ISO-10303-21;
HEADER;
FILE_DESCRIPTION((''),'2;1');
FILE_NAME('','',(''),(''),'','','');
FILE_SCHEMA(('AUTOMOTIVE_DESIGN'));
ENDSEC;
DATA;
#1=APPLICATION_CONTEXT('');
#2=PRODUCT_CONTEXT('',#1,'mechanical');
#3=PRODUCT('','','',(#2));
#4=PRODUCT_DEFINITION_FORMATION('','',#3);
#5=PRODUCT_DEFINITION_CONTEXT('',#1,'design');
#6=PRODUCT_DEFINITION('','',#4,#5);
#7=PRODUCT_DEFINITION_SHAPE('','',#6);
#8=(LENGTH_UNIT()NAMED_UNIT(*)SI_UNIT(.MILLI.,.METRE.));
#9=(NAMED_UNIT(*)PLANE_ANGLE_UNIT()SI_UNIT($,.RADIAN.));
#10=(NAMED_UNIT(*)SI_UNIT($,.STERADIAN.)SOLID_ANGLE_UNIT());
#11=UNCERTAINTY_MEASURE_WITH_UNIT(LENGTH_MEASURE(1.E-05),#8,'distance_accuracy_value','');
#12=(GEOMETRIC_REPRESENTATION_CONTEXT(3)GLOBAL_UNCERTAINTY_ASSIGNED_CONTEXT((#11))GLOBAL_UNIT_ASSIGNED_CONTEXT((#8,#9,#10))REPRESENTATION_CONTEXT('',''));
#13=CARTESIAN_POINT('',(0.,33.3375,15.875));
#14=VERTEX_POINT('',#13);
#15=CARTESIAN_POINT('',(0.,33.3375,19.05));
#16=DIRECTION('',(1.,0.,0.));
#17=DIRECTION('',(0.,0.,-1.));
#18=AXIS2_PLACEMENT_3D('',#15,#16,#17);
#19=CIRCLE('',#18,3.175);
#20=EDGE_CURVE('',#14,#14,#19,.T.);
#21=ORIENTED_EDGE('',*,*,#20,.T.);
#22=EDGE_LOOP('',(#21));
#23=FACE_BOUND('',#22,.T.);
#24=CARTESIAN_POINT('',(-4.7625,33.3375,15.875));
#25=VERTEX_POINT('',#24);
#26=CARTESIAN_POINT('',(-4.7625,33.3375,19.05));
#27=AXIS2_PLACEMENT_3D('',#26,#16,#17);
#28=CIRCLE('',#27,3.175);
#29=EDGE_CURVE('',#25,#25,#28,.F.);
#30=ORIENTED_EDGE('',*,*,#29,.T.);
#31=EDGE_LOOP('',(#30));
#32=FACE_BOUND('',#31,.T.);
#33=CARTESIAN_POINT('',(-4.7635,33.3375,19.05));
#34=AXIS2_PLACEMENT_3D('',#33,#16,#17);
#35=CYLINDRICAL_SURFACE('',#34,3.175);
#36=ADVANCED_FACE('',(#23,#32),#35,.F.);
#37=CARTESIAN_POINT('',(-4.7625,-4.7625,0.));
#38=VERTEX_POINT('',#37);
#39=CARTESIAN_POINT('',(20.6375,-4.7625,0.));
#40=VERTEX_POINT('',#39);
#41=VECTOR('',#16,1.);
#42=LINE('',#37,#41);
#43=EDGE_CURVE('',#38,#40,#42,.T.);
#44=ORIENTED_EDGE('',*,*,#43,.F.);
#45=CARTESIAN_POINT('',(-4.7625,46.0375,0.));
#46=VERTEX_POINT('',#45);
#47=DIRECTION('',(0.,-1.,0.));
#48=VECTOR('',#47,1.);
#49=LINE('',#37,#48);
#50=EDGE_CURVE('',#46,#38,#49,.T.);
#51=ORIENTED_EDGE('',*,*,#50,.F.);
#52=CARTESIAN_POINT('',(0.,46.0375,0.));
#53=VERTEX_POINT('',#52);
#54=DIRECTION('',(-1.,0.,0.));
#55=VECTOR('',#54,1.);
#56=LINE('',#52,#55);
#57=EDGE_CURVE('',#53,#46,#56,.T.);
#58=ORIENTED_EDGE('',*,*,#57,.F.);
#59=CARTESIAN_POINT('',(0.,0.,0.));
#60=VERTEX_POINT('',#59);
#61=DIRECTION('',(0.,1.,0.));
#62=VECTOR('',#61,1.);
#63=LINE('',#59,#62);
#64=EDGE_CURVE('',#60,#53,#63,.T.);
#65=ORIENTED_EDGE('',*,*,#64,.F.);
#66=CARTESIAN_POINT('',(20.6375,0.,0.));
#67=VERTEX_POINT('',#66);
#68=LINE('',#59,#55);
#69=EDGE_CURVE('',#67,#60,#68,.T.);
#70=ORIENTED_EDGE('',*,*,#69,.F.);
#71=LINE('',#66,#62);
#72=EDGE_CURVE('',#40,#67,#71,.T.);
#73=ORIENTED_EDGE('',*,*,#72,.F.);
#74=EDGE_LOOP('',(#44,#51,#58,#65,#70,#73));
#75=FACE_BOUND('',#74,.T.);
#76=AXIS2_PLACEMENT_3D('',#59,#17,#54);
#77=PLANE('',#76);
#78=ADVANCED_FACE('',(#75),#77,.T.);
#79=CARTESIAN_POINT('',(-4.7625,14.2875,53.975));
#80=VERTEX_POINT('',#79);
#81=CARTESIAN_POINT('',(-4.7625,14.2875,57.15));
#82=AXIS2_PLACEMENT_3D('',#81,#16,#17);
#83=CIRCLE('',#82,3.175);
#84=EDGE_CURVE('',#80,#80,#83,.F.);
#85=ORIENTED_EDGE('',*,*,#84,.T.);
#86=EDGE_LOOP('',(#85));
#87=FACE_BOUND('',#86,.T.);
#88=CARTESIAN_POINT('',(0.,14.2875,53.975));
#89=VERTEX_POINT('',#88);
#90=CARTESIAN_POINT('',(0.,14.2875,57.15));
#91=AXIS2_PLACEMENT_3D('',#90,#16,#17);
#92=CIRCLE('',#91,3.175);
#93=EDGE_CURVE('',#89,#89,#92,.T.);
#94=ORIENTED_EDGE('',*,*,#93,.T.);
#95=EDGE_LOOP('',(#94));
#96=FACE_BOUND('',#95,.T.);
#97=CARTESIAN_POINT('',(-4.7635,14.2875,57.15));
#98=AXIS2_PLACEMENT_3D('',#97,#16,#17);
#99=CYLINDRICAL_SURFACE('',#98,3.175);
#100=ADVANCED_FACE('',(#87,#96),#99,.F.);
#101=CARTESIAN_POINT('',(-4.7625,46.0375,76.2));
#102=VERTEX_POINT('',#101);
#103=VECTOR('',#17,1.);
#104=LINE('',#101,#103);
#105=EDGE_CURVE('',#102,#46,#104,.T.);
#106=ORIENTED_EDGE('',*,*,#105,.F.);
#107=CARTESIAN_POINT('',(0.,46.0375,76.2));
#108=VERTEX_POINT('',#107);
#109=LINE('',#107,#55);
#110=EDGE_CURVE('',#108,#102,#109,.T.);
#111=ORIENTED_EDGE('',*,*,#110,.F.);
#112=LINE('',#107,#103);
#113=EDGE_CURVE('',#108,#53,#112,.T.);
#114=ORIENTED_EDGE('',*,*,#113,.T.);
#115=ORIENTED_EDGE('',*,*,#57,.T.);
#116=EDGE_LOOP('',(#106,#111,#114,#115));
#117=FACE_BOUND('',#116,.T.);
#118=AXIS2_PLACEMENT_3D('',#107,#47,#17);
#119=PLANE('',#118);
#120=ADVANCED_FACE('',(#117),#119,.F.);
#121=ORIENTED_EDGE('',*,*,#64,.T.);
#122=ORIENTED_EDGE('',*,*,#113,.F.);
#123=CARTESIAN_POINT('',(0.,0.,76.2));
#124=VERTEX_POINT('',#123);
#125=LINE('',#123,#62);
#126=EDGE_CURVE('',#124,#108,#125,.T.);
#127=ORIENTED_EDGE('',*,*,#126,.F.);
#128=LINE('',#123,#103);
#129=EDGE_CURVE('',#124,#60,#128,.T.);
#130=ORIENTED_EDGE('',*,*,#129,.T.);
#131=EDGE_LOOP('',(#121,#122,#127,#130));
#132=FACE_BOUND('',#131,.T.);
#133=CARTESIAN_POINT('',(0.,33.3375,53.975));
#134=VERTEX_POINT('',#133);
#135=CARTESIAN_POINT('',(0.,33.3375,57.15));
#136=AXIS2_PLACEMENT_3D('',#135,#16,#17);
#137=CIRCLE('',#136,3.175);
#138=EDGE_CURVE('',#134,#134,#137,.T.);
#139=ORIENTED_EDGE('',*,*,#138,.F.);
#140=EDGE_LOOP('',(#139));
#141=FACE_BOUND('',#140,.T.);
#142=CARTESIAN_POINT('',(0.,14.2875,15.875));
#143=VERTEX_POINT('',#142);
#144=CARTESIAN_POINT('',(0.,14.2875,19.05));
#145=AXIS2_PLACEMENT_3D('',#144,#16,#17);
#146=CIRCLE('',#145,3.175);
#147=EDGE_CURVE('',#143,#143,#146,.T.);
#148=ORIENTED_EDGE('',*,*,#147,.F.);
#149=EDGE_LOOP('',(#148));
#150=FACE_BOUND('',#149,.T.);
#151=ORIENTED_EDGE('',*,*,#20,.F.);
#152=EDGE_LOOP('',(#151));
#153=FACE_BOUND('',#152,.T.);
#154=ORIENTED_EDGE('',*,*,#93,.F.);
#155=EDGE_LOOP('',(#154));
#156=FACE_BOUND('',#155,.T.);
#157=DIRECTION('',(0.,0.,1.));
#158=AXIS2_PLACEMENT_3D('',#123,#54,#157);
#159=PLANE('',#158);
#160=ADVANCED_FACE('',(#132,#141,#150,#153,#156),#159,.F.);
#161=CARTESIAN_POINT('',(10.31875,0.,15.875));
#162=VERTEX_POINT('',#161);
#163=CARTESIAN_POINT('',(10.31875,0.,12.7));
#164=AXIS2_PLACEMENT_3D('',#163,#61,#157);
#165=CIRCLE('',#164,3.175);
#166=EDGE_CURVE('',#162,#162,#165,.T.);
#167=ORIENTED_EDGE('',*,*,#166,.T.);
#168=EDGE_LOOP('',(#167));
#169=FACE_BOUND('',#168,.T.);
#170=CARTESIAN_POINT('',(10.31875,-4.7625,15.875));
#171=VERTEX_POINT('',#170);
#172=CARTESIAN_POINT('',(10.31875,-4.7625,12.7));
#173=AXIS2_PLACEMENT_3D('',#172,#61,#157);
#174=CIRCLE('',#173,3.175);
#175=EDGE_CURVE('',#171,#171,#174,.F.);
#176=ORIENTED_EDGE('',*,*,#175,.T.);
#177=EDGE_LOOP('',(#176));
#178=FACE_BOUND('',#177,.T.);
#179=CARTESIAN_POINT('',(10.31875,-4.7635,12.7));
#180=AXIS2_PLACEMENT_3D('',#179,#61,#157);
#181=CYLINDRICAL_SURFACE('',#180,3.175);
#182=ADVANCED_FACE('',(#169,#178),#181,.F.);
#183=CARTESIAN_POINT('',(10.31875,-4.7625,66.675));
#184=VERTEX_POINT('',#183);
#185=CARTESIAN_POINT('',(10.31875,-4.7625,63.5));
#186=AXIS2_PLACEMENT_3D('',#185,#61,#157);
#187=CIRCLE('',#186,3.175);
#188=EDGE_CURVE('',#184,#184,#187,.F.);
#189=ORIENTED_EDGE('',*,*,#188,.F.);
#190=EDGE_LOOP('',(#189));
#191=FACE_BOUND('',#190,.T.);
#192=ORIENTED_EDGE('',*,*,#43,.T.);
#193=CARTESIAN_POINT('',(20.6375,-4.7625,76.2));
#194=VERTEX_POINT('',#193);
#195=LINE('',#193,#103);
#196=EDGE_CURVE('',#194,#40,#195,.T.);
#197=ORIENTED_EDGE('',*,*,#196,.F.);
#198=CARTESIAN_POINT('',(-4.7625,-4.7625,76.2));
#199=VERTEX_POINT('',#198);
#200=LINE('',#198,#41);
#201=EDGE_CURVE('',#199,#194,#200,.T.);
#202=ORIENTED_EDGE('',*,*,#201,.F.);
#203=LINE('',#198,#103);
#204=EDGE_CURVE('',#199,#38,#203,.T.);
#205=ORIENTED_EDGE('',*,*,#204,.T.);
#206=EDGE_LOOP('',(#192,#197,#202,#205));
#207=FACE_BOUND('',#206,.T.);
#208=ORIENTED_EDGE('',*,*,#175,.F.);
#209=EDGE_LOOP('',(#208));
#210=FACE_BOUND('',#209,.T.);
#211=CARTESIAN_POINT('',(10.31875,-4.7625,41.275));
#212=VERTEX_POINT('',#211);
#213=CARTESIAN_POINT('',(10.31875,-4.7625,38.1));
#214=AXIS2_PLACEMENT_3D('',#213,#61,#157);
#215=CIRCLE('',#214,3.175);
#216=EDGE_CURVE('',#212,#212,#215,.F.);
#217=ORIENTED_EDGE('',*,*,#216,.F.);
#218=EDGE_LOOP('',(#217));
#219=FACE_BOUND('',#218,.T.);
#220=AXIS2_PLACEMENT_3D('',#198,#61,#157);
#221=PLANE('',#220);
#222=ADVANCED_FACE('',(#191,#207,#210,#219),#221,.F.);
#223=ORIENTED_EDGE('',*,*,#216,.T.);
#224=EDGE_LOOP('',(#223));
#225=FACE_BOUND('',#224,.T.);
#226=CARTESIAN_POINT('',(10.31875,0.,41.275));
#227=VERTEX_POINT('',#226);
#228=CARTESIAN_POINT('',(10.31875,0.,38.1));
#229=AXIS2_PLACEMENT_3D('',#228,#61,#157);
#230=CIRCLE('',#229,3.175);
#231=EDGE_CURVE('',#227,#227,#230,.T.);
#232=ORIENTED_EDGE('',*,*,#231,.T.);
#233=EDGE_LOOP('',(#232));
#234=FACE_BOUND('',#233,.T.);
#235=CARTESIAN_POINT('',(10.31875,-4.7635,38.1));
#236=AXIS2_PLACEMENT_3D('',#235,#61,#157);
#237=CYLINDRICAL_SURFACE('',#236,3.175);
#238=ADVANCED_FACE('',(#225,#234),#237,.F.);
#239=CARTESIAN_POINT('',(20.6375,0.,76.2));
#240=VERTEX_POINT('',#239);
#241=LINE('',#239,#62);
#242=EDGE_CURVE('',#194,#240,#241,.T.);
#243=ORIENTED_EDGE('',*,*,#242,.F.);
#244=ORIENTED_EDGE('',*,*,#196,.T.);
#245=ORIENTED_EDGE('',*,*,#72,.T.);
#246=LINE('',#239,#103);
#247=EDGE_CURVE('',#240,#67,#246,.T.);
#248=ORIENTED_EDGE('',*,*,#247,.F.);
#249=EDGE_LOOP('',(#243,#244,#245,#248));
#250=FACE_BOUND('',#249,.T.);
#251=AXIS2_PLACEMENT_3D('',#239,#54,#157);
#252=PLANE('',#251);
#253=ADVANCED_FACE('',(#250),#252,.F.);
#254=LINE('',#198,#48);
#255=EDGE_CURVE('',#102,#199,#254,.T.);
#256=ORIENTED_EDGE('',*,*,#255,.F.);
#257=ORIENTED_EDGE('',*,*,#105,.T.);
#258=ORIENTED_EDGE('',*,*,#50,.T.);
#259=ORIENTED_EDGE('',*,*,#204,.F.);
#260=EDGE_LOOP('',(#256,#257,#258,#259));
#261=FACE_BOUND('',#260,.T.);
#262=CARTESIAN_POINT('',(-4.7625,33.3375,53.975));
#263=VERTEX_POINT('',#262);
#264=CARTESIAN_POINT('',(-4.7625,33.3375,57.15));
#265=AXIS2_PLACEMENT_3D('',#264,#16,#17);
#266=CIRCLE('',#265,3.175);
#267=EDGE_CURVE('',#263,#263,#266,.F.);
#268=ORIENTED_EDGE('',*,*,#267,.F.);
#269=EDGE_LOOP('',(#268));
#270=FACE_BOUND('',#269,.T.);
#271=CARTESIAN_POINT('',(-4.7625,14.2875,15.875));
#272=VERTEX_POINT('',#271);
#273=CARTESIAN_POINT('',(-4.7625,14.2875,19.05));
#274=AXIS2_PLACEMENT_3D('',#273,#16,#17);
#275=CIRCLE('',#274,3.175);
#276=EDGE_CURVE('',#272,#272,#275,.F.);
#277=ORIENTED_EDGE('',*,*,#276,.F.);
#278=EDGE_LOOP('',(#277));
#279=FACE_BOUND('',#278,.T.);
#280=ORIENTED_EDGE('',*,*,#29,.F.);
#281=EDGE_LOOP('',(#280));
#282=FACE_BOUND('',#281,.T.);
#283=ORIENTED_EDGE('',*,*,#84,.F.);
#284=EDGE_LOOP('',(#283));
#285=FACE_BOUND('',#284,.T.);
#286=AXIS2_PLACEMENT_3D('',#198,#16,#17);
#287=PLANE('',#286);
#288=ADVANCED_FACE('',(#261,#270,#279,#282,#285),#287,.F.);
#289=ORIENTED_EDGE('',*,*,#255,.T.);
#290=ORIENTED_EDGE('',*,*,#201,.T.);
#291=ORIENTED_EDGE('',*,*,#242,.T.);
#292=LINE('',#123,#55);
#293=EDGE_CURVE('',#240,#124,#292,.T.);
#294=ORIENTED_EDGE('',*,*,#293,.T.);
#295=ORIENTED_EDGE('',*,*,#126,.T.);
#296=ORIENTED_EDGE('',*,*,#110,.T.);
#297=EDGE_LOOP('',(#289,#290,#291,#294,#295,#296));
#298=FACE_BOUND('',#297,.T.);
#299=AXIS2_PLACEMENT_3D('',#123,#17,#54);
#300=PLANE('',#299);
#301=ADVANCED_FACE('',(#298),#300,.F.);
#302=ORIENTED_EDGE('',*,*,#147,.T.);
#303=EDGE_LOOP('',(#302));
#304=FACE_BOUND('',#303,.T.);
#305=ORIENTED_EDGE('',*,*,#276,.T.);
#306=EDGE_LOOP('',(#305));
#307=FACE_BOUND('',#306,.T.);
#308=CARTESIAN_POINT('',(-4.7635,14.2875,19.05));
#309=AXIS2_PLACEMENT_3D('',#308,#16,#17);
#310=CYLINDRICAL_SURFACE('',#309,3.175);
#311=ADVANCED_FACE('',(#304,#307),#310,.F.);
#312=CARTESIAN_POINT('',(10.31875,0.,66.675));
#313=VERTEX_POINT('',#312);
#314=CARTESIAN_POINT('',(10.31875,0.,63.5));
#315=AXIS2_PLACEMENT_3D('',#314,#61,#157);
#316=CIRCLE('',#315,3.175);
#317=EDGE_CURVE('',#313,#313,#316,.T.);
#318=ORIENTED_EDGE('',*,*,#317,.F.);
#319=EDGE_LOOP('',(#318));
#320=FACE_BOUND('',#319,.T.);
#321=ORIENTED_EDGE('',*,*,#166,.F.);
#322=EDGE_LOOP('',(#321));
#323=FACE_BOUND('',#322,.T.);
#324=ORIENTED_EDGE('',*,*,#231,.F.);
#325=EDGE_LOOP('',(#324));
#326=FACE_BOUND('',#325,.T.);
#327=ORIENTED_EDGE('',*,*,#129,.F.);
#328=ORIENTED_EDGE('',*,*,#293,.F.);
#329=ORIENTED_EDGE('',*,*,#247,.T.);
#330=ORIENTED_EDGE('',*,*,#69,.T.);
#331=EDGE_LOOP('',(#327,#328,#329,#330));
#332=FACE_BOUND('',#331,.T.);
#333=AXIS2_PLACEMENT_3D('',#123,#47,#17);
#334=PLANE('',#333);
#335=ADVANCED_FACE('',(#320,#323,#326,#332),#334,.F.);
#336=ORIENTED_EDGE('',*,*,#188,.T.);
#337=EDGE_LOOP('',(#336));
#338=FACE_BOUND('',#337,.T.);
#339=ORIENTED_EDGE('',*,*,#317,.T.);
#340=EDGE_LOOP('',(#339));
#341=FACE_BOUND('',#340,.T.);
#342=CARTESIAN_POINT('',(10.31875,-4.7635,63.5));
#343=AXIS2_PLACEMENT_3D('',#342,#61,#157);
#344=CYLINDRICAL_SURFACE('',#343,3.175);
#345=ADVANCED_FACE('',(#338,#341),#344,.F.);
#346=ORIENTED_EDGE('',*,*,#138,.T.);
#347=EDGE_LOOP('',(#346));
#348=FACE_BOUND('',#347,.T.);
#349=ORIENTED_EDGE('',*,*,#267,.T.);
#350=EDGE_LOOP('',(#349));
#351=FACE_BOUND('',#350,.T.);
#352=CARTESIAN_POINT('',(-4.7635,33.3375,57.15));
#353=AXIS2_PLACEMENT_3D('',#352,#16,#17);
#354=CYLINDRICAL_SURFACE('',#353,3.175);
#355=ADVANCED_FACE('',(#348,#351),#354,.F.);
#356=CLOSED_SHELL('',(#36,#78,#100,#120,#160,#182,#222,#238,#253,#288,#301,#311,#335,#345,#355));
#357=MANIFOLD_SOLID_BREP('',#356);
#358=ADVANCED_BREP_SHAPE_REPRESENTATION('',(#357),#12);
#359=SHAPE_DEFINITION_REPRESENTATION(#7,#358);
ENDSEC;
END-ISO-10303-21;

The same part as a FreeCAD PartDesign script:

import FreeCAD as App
import Part
import Sketcher

V = App.Vector
Q = App.Units.Quantity


def add_polygon(sketch, points):
    """Adds a closed chain of lines whose ends are joined by coincident constraints."""
    first, n = sketch.GeometryCount, len(points)
    for a, b in zip(points, points[1:] + points[:1]):
        sketch.addGeometry(Part.LineSegment(App.Vector(*a, 0), App.Vector(*b, 0)), False)
    for i in range(n):
        sketch.addConstraint(Sketcher.Constraint("Coincident", first + i, 2, first + (i + 1) % n, 1))

doc = App.newDocument("Part")
body = doc.addObject("PartDesign::Body", "Body")

# Sketch on XY plane
sketch1 = body.newObject("Sketcher::SketchObject", "Sketch")
sketch1.AttachmentSupport = (doc.getObject("XY_Plane"), [""])
sketch1.MapMode = "FlatFace"
add_polygon(sketch1, [(0, 0), (0, 46.0375), (-4.7625, 46.0375), (-4.7625, -4.7625), (20.6375, -4.7625), (20.6375, 0)])  # lines 0-5
sketch1.addConstraint(Sketcher.Constraint("Vertical", 0))
sketch1.addConstraint(Sketcher.Constraint("Horizontal", 1))
sketch1.addConstraint(Sketcher.Constraint("Vertical", 2))
sketch1.addConstraint(Sketcher.Constraint("Horizontal", 3))
sketch1.addConstraint(Sketcher.Constraint("Vertical", 4))
sketch1.addConstraint(Sketcher.Constraint("Horizontal", 5))
sketch1.addConstraint(Sketcher.Constraint("Coincident", 5, 2, -1, 1))
sketch1.addConstraint(Sketcher.Constraint("Equal", 1, 4))
sketch1.addConstraint(Sketcher.Constraint("DistanceX", 3, 1, 3, 2, Q("1 in")))
sketch1.addConstraint(Sketcher.Constraint("DistanceY", 2, 2, 2, 1, Q("2 in")))
sketch1.addConstraint(Sketcher.Constraint("DistanceX", 1, 2, 1, 1, Q("0.1875 in")))
pad1 = body.newObject("PartDesign::Pad", "Pad")
pad1.Profile = sketch1
pad1.Length = Q("3 in")

# Sketch on YZ plane
sketch2 = body.newObject("Sketcher::SketchObject", "Sketch001")
sketch2.AttachmentSupport = (doc.getObject("YZ_Plane"), [""])
sketch2.MapMode = "FlatFace"
sketch2.addGeometry(Part.Circle(V(33.3375, 57.15, 0), V(0, 0, 1), 3.175), False)
sketch2.addConstraint(Sketcher.Constraint("Diameter", 0, Q("0.25 in")))
sketch2.addConstraint(Sketcher.Constraint("DistanceY", -1, 1, 0, 3, Q("2.25 in")))
sketch2.addConstraint(Sketcher.Constraint("DistanceX", -1, 1, 0, 3, Q("1.3125 in")))
pocket1 = body.newObject("PartDesign::Pocket", "Pocket")
pocket1.Profile = sketch2
pocket1.Type = "UpToFirst"

# Sketch on YZ plane
sketch3 = body.newObject("Sketcher::SketchObject", "Sketch002")
sketch3.AttachmentSupport = (doc.getObject("YZ_Plane"), [""])
sketch3.MapMode = "FlatFace"
sketch3.addGeometry(Part.Circle(V(33.3375, 19.05, 0), V(0, 0, 1), 3.175), False)
sketch3.addConstraint(Sketcher.Constraint("Diameter", 0, Q("0.25 in")))
sketch3.addConstraint(Sketcher.Constraint("DistanceY", -1, 1, 0, 3, Q("0.75 in")))
sketch3.addConstraint(Sketcher.Constraint("DistanceX", -1, 1, 0, 3, Q("1.3125 in")))
pocket2 = body.newObject("PartDesign::Pocket", "Pocket001")
pocket2.Profile = sketch3
pocket2.Type = "UpToFirst"

# Sketch on YZ plane
sketch4 = body.newObject("Sketcher::SketchObject", "Sketch003")
sketch4.AttachmentSupport = (doc.getObject("YZ_Plane"), [""])
sketch4.MapMode = "FlatFace"
sketch4.addGeometry(Part.Circle(V(14.2875, 19.05, 0), V(0, 0, 1), 3.175), False)
sketch4.addConstraint(Sketcher.Constraint("Diameter", 0, Q("0.25 in")))
sketch4.addConstraint(Sketcher.Constraint("DistanceY", -1, 1, 0, 3, Q("0.75 in")))
sketch4.addConstraint(Sketcher.Constraint("DistanceX", -1, 1, 0, 3, Q("0.5625 in")))
pocket3 = body.newObject("PartDesign::Pocket", "Pocket002")
pocket3.Profile = sketch4
pocket3.Type = "UpToFirst"

# Sketch on YZ plane
sketch5 = body.newObject("Sketcher::SketchObject", "Sketch004")
sketch5.AttachmentSupport = (doc.getObject("YZ_Plane"), [""])
sketch5.MapMode = "FlatFace"
sketch5.addGeometry(Part.Circle(V(14.2875, 57.15, 0), V(0, 0, 1), 3.175), False)
sketch5.addConstraint(Sketcher.Constraint("Diameter", 0, Q("0.25 in")))
sketch5.addConstraint(Sketcher.Constraint("DistanceY", -1, 1, 0, 3, Q("2.25 in")))
sketch5.addConstraint(Sketcher.Constraint("DistanceX", -1, 1, 0, 3, Q("0.5625 in")))
pocket4 = body.newObject("PartDesign::Pocket", "Pocket003")
pocket4.Profile = sketch5
pocket4.Type = "UpToFirst"

# Sketch on XZ plane
sketch6 = body.newObject("Sketcher::SketchObject", "Sketch005")
sketch6.AttachmentSupport = (doc.getObject("XZ_Plane"), [""])
sketch6.MapMode = "FlatFace"
sketch6.addGeometry(Part.Circle(V(10.31875, 12.7, 0), V(0, 0, 1), 3.175), False)
sketch6.addConstraint(Sketcher.Constraint("Diameter", 0, Q("0.25 in")))
sketch6.addConstraint(Sketcher.Constraint("DistanceY", -1, 1, 0, 3, Q("0.5 in")))
sketch6.addConstraint(Sketcher.Constraint("DistanceX", -1, 1, 0, 3, Q("0.40625 in")))
pocket5 = body.newObject("PartDesign::Pocket", "Pocket004")
pocket5.Profile = sketch6
pocket5.Type = "UpToFirst"
pocket5.Reversed = True

# Sketch on XZ plane
sketch7 = body.newObject("Sketcher::SketchObject", "Sketch006")
sketch7.AttachmentSupport = (doc.getObject("XZ_Plane"), [""])
sketch7.MapMode = "FlatFace"
sketch7.addGeometry(Part.Circle(V(10.31875, 63.5, 0), V(0, 0, 1), 3.175), False)
sketch7.addConstraint(Sketcher.Constraint("Diameter", 0, Q("0.25 in")))
sketch7.addConstraint(Sketcher.Constraint("DistanceY", -1, 1, 0, 3, Q("2.5 in")))
sketch7.addConstraint(Sketcher.Constraint("DistanceX", -1, 1, 0, 3, Q("0.40625 in")))
pocket6 = body.newObject("PartDesign::Pocket", "Pocket005")
pocket6.Profile = sketch7
pocket6.Type = "UpToFirst"
pocket6.Reversed = True

# Sketch on XZ plane
sketch8 = body.newObject("Sketcher::SketchObject", "Sketch007")
sketch8.AttachmentSupport = (doc.getObject("XZ_Plane"), [""])
sketch8.MapMode = "FlatFace"
sketch8.addGeometry(Part.Circle(V(10.31875, 38.1, 0), V(0, 0, 1), 3.175), False)
sketch8.addConstraint(Sketcher.Constraint("Diameter", 0, Q("0.25 in")))
sketch8.addConstraint(Sketcher.Constraint("DistanceY", -1, 1, 0, 3, Q("1.5 in")))
sketch8.addConstraint(Sketcher.Constraint("DistanceX", -1, 1, 0, 3, Q("0.40625 in")))
pocket7 = body.newObject("PartDesign::Pocket", "Pocket006")
pocket7.Profile = sketch8
pocket7.Type = "UpToFirst"
pocket7.Reversed = True

doc.recompute()
